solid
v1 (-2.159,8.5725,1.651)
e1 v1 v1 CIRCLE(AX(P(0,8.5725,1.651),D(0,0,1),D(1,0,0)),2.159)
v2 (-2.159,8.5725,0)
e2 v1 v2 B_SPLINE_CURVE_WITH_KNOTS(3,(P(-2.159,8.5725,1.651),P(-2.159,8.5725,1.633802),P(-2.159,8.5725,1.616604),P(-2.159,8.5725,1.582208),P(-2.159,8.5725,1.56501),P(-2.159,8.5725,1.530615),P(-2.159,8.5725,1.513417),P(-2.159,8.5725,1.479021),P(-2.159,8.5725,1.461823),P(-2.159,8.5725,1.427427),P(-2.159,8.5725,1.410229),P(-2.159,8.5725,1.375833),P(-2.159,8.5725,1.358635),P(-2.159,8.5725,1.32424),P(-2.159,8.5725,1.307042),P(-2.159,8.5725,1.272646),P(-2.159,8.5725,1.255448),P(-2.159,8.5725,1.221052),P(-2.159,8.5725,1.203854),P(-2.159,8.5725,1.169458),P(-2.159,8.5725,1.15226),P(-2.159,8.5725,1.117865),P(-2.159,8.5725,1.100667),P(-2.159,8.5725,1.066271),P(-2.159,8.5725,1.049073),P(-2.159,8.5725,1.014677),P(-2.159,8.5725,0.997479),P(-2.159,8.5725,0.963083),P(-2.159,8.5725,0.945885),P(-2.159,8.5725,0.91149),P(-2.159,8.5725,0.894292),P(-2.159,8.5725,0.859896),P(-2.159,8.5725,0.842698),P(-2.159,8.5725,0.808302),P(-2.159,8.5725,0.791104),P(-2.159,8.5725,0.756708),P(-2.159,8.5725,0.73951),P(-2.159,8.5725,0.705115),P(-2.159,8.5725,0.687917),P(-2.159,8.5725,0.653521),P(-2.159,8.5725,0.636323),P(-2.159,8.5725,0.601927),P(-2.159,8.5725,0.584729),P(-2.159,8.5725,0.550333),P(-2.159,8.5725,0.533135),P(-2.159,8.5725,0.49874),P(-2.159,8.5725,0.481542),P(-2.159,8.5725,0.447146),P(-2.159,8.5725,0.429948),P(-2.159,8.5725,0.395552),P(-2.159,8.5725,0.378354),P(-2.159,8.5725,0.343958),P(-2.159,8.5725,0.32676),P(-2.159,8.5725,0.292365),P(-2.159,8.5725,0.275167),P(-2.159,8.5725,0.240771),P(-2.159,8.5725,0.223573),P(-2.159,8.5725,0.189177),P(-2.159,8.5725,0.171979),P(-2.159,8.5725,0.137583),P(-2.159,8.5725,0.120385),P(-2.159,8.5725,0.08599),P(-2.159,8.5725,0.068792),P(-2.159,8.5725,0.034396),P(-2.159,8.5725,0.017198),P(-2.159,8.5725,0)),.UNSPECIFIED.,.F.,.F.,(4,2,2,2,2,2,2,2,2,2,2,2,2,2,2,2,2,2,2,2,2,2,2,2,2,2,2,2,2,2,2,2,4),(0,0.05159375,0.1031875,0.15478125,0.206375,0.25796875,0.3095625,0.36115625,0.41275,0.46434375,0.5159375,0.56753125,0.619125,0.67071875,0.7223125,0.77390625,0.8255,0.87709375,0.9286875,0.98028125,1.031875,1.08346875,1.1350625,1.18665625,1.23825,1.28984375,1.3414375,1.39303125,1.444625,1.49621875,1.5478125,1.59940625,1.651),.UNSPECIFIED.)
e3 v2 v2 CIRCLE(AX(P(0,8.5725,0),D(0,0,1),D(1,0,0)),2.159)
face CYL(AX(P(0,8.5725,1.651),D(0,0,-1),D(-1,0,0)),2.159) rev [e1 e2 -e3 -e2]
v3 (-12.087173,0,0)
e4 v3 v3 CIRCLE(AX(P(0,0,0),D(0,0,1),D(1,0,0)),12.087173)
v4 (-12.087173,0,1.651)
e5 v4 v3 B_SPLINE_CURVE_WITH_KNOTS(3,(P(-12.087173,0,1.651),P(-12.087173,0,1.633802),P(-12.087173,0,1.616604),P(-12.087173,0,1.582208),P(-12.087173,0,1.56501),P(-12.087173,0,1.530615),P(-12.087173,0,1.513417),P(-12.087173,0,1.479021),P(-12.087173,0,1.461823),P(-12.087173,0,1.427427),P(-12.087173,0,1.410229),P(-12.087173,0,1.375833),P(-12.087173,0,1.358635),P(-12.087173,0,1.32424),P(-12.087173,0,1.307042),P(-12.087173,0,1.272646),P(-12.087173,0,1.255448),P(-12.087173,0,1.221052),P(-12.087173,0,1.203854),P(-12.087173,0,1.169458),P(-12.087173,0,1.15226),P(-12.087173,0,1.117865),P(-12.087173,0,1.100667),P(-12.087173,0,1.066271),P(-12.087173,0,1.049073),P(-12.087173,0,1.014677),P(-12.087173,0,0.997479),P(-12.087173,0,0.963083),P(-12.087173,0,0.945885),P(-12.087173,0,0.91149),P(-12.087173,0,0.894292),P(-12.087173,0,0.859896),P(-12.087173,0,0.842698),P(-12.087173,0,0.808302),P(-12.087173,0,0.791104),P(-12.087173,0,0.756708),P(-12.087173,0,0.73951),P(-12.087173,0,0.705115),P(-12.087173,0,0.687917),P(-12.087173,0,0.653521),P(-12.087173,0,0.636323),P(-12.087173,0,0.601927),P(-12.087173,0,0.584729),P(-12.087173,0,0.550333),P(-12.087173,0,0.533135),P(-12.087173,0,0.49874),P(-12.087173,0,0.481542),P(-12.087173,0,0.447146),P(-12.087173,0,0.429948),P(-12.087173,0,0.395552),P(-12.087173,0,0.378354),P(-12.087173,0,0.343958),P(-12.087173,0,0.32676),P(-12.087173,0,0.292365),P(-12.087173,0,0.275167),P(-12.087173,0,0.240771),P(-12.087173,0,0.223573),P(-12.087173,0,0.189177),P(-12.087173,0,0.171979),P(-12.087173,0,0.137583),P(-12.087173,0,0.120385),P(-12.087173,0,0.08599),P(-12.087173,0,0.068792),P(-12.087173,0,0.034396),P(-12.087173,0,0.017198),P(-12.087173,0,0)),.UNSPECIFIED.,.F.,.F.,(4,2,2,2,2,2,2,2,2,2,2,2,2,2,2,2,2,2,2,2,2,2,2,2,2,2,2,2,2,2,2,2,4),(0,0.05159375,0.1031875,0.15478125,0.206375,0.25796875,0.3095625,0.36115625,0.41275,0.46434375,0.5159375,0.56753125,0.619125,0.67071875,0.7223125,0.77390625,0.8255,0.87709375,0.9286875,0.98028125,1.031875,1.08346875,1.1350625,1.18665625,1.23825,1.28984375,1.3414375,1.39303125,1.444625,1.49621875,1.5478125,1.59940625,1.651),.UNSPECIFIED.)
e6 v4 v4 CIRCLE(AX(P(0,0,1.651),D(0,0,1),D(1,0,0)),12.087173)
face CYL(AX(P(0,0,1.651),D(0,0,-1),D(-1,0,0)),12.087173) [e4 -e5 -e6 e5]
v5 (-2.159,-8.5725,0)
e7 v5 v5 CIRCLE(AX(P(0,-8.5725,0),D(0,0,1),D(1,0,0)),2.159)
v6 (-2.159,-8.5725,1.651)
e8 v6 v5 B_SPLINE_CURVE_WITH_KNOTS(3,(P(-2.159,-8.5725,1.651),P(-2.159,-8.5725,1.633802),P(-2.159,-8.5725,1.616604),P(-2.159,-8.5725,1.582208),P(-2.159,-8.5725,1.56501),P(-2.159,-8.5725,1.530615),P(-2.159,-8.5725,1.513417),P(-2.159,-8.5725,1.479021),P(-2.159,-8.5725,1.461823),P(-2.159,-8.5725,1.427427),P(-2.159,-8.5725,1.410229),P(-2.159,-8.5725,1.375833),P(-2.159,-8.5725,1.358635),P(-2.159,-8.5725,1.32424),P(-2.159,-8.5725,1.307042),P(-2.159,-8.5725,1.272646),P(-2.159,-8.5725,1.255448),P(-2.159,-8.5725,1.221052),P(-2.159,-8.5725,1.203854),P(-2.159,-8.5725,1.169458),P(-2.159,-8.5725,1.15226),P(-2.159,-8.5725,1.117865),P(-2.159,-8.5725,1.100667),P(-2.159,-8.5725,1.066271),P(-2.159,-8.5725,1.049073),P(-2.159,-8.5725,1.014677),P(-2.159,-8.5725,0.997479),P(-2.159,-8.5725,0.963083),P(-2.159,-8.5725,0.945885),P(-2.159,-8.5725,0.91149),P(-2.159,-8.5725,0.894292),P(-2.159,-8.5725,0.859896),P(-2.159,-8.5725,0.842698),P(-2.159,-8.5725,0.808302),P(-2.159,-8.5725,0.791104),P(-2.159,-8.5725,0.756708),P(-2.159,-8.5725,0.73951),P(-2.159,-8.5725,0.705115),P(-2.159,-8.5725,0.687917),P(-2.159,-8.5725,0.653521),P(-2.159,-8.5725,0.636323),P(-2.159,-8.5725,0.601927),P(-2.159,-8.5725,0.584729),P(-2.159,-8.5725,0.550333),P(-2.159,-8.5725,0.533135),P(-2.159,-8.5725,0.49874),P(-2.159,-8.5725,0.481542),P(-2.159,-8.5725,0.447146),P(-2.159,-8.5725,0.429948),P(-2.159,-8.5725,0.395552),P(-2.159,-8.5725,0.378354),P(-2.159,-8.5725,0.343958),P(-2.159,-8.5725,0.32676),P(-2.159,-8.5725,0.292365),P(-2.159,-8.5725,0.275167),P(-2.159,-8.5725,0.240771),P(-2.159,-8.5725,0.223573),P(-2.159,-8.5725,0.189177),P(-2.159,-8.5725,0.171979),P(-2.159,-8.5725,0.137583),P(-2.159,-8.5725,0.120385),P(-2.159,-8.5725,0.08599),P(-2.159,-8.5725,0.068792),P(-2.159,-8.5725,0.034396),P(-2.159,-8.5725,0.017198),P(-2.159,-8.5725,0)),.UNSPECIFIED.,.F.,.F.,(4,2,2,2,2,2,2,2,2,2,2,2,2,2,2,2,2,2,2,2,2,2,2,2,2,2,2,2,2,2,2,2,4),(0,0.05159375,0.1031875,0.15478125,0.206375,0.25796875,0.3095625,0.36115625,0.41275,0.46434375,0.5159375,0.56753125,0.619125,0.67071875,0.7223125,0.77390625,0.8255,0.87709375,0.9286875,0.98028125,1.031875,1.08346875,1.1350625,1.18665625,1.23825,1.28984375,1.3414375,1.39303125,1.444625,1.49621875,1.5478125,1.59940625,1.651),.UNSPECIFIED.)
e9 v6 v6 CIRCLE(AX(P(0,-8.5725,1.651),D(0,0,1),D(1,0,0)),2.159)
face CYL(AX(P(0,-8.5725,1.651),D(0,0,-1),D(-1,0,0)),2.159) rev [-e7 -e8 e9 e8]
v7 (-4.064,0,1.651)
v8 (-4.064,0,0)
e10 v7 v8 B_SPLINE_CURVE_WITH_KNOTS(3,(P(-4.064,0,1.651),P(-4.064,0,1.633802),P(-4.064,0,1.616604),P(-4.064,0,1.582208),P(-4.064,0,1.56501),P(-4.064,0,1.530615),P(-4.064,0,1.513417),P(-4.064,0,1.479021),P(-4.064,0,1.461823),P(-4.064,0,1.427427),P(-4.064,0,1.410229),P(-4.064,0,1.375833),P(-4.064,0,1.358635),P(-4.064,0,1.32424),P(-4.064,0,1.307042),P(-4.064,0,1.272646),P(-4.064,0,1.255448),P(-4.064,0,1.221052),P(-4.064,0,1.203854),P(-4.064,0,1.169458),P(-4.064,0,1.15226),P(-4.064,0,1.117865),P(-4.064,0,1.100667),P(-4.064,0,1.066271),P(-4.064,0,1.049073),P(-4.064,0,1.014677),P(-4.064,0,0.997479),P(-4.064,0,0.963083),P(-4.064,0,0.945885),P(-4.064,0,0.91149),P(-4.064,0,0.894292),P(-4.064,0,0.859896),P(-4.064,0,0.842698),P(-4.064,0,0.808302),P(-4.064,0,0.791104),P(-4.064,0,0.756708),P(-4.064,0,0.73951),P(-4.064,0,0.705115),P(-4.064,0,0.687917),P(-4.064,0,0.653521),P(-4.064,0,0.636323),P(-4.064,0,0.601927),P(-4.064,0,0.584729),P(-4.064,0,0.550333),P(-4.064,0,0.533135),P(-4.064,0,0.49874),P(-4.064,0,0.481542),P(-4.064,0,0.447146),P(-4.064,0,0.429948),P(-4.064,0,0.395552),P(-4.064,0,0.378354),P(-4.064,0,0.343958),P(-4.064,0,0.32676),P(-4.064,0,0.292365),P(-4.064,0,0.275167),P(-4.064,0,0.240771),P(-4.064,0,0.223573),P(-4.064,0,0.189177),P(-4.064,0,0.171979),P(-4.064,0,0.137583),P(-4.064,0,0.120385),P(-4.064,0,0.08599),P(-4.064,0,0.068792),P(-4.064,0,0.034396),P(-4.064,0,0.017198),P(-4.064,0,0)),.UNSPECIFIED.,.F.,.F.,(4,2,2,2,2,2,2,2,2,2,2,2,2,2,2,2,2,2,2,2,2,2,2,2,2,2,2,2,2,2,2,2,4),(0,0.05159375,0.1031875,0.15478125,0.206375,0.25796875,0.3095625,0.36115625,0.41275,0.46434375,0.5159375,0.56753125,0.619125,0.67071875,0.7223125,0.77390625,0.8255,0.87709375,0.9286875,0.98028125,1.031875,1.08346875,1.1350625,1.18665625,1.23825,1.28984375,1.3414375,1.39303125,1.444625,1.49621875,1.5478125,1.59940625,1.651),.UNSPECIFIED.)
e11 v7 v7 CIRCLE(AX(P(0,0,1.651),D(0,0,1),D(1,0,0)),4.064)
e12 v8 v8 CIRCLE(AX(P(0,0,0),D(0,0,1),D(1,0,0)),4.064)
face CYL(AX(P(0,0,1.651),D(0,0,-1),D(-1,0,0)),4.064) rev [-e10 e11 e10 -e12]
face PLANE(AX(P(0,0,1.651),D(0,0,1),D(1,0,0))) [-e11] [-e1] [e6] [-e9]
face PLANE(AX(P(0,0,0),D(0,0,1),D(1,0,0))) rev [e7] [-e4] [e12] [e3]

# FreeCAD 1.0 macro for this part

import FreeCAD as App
import Part
import Sketcher
Q = App.Units.Quantity

doc = App.newDocument("Part")
body = doc.addObject("PartDesign::Body", "Body")

sketch1 = doc.addObject("Sketcher::SketchObject", "Sketch")
body.addObject(sketch1)
sketch1.AttachmentSupport = (doc.XY_Plane, [""])
sketch1.MapMode = "FlatFace"
sketch1.addGeometry(Part.Circle(App.Vector(0, 0, 0), App.Vector(0, 0, 1), 12.087173), False)
sketch1.addGeometry(Part.Circle(App.Vector(0, 8.5725, 0), App.Vector(0, 0, 1), 2.159), False)
sketch1.addGeometry(Part.Circle(App.Vector(0, -8.5725, 0), App.Vector(0, 0, 1), 2.159), False)
sketch1.addGeometry(Part.Circle(App.Vector(0, 0, 0), App.Vector(0, 0, 1), 4.064), False)
sketch1.addConstraint(Sketcher.Constraint("Coincident", 0, 3, -1, 1))
sketch1.addConstraint(Sketcher.Constraint("Coincident", 3, 3, -1, 1))
sketch1.addConstraint(Sketcher.Constraint("Equal", 1, 2))
sketch1.addConstraint(Sketcher.Constraint("Symmetric", 1, 3, 2, 3, -1, 1))
sketch1.addConstraint(Sketcher.Constraint("PointOnObject", 1, 3, -2))
sketch1.addConstraint(Sketcher.Constraint("Diameter", 1, Q("0.17 in")))
sketch1.addConstraint(Sketcher.Constraint("Diameter", 3, Q("0.32 in")))
sketch1.addConstraint(Sketcher.Constraint("DistanceY", 2, 3, 1, 3, Q("0.675 in")))
sketch1.addConstraint(Sketcher.Constraint("Diameter", 0, Q("24.174346 mm")))
pad1 = doc.addObject("PartDesign::Pad", "Pad")
body.addObject(pad1)
pad1.Profile = sketch1
pad1.Length = Q("0.065 in")

doc.recompute()
